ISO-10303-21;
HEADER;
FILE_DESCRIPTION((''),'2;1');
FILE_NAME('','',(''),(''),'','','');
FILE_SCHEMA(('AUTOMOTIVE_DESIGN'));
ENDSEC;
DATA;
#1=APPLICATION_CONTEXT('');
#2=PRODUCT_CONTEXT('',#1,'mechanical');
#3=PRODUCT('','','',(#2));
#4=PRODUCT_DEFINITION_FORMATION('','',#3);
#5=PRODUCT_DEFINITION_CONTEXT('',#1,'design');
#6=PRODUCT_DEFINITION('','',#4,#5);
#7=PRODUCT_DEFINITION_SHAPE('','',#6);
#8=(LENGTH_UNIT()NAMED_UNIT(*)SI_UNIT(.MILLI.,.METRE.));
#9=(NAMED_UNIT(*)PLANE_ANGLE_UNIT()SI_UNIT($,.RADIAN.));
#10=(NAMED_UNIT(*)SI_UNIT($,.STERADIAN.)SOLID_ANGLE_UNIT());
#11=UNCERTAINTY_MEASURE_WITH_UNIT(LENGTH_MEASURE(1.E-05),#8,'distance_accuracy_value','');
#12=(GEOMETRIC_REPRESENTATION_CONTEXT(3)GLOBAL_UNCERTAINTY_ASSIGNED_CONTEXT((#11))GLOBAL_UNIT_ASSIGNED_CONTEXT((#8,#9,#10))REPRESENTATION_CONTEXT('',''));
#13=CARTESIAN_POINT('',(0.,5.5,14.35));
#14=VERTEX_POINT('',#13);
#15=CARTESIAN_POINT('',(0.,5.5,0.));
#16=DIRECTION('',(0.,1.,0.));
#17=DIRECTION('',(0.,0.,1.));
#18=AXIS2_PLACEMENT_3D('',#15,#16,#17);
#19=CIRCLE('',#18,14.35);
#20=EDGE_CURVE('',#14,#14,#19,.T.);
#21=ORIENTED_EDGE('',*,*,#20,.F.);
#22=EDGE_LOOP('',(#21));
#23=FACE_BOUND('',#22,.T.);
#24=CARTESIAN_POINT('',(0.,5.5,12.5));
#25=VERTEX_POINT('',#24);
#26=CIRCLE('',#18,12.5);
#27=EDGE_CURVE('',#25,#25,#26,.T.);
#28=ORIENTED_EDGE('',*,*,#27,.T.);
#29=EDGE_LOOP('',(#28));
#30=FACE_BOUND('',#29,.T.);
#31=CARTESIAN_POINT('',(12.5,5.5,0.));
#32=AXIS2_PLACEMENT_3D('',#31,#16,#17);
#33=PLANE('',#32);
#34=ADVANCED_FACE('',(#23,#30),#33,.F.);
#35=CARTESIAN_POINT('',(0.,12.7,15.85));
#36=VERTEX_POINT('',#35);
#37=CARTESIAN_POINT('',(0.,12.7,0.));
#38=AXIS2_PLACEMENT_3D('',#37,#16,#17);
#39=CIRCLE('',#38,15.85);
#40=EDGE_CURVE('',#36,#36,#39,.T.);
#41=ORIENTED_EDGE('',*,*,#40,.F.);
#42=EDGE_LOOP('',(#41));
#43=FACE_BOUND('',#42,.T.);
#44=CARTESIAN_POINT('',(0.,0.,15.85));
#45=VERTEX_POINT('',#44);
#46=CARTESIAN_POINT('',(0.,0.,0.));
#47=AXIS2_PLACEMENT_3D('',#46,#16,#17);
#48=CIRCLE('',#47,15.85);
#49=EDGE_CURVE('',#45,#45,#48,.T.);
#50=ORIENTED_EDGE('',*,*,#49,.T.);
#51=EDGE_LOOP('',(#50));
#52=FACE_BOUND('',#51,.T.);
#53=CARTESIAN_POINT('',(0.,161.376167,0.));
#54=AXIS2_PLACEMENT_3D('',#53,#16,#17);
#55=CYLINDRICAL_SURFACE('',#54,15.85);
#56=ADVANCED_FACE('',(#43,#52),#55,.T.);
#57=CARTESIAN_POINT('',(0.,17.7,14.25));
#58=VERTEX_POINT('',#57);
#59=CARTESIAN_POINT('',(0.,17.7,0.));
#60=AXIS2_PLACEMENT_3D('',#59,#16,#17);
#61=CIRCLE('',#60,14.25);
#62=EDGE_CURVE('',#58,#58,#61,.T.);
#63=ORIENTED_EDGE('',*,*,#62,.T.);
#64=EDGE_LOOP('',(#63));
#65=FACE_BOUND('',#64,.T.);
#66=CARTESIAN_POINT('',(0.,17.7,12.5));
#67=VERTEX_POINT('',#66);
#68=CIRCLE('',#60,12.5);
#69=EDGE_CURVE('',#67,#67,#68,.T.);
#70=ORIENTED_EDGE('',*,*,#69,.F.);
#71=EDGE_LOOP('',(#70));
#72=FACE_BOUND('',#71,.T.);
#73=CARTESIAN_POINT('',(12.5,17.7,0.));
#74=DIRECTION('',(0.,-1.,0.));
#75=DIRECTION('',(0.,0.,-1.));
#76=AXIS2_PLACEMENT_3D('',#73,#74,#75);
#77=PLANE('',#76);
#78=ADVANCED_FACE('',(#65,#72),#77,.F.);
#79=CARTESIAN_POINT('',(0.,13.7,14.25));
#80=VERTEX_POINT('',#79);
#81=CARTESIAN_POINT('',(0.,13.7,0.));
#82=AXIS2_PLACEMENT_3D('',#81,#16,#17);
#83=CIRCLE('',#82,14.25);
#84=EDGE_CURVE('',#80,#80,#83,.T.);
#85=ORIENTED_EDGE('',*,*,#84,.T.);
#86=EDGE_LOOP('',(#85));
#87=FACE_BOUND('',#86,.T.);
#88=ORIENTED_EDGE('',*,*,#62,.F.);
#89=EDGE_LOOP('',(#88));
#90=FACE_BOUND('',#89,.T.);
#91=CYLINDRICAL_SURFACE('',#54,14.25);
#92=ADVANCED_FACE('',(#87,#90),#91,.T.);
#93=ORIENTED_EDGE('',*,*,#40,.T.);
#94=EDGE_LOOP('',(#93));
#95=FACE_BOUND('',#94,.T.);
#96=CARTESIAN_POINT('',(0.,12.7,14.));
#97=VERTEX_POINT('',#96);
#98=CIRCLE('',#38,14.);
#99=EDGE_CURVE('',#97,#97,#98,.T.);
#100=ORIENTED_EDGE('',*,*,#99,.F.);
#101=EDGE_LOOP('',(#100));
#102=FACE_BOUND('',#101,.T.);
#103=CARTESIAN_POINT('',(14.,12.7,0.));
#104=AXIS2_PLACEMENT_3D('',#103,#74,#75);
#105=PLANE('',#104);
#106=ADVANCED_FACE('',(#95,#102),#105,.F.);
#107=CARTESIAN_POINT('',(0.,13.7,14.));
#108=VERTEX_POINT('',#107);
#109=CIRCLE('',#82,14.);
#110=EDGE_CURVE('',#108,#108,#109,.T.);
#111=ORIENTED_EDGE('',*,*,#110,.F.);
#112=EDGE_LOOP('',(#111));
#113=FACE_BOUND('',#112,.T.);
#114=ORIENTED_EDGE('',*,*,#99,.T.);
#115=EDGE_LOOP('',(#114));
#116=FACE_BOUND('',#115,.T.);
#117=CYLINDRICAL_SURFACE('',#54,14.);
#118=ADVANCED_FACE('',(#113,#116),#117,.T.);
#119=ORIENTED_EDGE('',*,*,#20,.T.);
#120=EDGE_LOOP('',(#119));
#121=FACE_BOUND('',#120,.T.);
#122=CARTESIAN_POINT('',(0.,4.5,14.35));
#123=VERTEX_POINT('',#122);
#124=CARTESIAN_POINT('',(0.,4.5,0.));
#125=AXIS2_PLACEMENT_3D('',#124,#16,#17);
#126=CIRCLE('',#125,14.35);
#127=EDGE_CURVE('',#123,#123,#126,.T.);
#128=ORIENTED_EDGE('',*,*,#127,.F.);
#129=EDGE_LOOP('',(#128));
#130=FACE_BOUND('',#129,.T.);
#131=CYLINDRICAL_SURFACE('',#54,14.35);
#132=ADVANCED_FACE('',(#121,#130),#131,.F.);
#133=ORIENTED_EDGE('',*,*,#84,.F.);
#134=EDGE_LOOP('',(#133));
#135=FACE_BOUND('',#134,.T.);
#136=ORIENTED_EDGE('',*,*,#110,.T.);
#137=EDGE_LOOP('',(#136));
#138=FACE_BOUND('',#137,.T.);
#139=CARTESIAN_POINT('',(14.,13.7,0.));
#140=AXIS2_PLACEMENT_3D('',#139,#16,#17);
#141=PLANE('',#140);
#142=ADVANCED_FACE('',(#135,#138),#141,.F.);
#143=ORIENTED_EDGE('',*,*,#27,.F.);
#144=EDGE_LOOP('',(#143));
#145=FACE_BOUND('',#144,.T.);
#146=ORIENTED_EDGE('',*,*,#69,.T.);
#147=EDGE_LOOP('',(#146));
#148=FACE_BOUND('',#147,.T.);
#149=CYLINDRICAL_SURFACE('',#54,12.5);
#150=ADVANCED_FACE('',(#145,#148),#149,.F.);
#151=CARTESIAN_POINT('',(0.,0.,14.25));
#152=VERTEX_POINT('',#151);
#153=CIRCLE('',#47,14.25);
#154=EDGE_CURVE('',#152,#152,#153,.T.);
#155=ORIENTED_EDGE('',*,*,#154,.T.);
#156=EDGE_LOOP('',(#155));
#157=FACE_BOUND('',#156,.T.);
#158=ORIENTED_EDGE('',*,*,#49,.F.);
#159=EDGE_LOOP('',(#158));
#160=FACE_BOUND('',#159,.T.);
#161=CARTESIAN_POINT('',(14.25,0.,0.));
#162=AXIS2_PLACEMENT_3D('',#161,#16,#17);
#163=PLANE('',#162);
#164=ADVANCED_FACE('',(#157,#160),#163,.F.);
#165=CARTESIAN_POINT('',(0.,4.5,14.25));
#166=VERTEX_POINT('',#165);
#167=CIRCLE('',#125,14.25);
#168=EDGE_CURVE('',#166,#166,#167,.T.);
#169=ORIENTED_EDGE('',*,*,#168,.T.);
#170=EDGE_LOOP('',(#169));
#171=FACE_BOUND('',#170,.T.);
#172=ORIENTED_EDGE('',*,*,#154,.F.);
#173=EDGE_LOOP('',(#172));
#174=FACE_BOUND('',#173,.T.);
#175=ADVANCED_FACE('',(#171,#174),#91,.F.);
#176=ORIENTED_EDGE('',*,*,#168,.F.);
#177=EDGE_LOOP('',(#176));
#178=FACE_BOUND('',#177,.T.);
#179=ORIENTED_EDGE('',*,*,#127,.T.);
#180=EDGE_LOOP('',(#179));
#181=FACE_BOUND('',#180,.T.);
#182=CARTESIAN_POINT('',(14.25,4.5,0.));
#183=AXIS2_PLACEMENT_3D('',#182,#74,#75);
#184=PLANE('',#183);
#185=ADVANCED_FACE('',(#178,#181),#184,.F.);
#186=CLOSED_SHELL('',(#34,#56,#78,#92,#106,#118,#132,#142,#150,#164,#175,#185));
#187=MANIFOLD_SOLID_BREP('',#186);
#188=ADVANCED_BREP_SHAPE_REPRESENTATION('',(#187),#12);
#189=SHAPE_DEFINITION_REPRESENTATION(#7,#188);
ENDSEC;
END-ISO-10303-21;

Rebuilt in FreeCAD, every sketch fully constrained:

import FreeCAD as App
import Part
import Sketcher

V = App.Vector
Q = App.Units.Quantity


def add_polygon(sketch, points):
    """Adds a closed chain of lines whose ends are joined by coincident constraints."""
    first, n = sketch.GeometryCount, len(points)
    for a, b in zip(points, points[1:] + points[:1]):
        sketch.addGeometry(Part.LineSegment(App.Vector(*a, 0), App.Vector(*b, 0)), False)
    for i in range(n):
        sketch.addConstraint(Sketcher.Constraint("Coincident", first + i, 2, first + (i + 1) % n, 1))

doc = App.newDocument("Part")
body = doc.addObject("PartDesign::Body", "Body")

# Sketch on XY plane
sketch1 = body.newObject("Sketcher::SketchObject", "Sketch")
sketch1.AttachmentSupport = (doc.getObject("XY_Plane"), [""])
sketch1.MapMode = "FlatFace"
add_polygon(sketch1, [(14.25, 4.5), (14.25, 0), (15.85, 0), (15.85, 12.7), (14, 12.7), (14, 13.7), (14.25, 13.7), (14.25, 17.7), (12.5, 17.7), (12.5, 5.5), (14.35, 5.5), (14.35, 4.5)])  # lines 0-11
sketch1.addConstraint([
    Sketcher.Constraint("Vertical", 0),
    Sketcher.Constraint("Horizontal", 1),
    Sketcher.Constraint("Vertical", 2),
    Sketcher.Constraint("Horizontal", 3),
    Sketcher.Constraint("Vertical", 4),
    Sketcher.Constraint("Horizontal", 5),
    Sketcher.Constraint("Vertical", 6),
    Sketcher.Constraint("Horizontal", 7),
    Sketcher.Constraint("Vertical", 8),
    Sketcher.Constraint("Horizontal", 9),
    Sketcher.Constraint("Vertical", 10),
    Sketcher.Constraint("Horizontal", 11),
    Sketcher.Constraint("PointOnObject", 0, 2, -1),
    Sketcher.Constraint("Vertical", 0, 2, 5, 2),
    Sketcher.Constraint("Equal", 3, 9),
    Sketcher.Constraint("Equal", 4, 10),
    Sketcher.Constraint("DistanceY", 4, 1, 4, 2, Q("1 mm")),
    Sketcher.Constraint("DistanceY", 6, 1, 6, 2, Q("4 mm")),
    Sketcher.Constraint("DistanceX", 1, 1, 1, 2, Q("1.6 mm")),
    Sketcher.Constraint("DistanceX", 11, 2, 11, 1, Q("0.1 mm")),
    Sketcher.Constraint("DistanceY", 0, 2, 0, 1, Q("4.5 mm")),
    Sketcher.Constraint("DistanceY", 2, 1, 2, 2, Q("12.7 mm")),
    Sketcher.Constraint("DistanceX", -1, 1, 3, 2, Q("14 mm")),
    Sketcher.Constraint("DistanceX", 3, 2, 3, 1, Q("1.85 mm")),
])
revolution = body.newObject("PartDesign::Revolution", "Revolution")
revolution.Profile = sketch1
revolution.ReferenceAxis = (sketch1, ["V_Axis"])
revolution.Angle = 360

doc.recompute()
